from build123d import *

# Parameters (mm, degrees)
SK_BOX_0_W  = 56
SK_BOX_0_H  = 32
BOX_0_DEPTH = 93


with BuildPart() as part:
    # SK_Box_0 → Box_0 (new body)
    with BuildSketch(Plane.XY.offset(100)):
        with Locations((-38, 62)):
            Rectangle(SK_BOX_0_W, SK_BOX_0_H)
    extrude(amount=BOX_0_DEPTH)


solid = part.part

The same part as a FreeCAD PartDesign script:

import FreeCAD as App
import Part
import Sketcher
Q = App.Units.Quantity


def add_polygon(sketch, points):
    """Adds a closed chain of lines whose ends are joined by coincident constraints."""
    first, n = sketch.GeometryCount, len(points)
    for a, b in zip(points, points[1:] + points[:1]):
        sketch.addGeometry(Part.LineSegment(App.Vector(*a, 0), App.Vector(*b, 0)), False)
    for i in range(n):
        sketch.addConstraint(Sketcher.Constraint("Coincident", first + i, 2, first + (i + 1) % n, 1))

doc = App.newDocument("Part")
params = doc.addObject("Spreadsheet::Sheet", "Params")
for row, (alias, value) in enumerate([
    ("sketch1_width", "56 mm"),
    ("sketch1_height", "32 mm"),
    ("pad1_length", "93 mm"),
], start=1):
    params.set(f"A{row}", alias)
    params.set(f"B{row}", "=" + value)
    params.setAlias(f"B{row}", alias)

body = doc.addObject("PartDesign::Body", "Body")

# Sketch on XY plane
sketch1 = body.newObject("Sketcher::SketchObject", "Sketch")
sketch1.AttachmentSupport = (doc.getObject("XY_Plane"), [""])
sketch1.MapMode = "FlatFace"
sketch1.AttachmentOffset = App.Placement(App.Vector(0, 0, 100), App.Rotation())
add_polygon(sketch1, [(-66, 78), (-66, 46), (-10, 46), (-10, 78)])  # lines 0-3
sketch1.addConstraint(Sketcher.Constraint("Vertical", 0))
sketch1.addConstraint(Sketcher.Constraint("Horizontal", 1))
sketch1.addConstraint(Sketcher.Constraint("Vertical", 2))
sketch1.addConstraint(Sketcher.Constraint("Horizontal", 3))
sketch1.addConstraint(Sketcher.Constraint("DistanceX", 1, 1, 1, 2, Q("56 mm")))
sketch1.addConstraint(Sketcher.Constraint("DistanceY", 0, 2, 0, 1, Q("32 mm")))
sketch1.addConstraint(Sketcher.Constraint("DistanceX", 0, 2, -1, 1, Q("66 mm")))
sketch1.addConstraint(Sketcher.Constraint("DistanceY", -1, 1, 0, 2, Q("46 mm")))
sketch1.setExpression("Constraints[8]", "Params.sketch1_width")
sketch1.setExpression("Constraints[9]", "Params.sketch1_height")
pad1 = body.newObject("PartDesign::Pad", "Pad")
pad1.Profile = sketch1
pad1.setExpression("Length", "Params.pad1_length")

doc.recompute()
